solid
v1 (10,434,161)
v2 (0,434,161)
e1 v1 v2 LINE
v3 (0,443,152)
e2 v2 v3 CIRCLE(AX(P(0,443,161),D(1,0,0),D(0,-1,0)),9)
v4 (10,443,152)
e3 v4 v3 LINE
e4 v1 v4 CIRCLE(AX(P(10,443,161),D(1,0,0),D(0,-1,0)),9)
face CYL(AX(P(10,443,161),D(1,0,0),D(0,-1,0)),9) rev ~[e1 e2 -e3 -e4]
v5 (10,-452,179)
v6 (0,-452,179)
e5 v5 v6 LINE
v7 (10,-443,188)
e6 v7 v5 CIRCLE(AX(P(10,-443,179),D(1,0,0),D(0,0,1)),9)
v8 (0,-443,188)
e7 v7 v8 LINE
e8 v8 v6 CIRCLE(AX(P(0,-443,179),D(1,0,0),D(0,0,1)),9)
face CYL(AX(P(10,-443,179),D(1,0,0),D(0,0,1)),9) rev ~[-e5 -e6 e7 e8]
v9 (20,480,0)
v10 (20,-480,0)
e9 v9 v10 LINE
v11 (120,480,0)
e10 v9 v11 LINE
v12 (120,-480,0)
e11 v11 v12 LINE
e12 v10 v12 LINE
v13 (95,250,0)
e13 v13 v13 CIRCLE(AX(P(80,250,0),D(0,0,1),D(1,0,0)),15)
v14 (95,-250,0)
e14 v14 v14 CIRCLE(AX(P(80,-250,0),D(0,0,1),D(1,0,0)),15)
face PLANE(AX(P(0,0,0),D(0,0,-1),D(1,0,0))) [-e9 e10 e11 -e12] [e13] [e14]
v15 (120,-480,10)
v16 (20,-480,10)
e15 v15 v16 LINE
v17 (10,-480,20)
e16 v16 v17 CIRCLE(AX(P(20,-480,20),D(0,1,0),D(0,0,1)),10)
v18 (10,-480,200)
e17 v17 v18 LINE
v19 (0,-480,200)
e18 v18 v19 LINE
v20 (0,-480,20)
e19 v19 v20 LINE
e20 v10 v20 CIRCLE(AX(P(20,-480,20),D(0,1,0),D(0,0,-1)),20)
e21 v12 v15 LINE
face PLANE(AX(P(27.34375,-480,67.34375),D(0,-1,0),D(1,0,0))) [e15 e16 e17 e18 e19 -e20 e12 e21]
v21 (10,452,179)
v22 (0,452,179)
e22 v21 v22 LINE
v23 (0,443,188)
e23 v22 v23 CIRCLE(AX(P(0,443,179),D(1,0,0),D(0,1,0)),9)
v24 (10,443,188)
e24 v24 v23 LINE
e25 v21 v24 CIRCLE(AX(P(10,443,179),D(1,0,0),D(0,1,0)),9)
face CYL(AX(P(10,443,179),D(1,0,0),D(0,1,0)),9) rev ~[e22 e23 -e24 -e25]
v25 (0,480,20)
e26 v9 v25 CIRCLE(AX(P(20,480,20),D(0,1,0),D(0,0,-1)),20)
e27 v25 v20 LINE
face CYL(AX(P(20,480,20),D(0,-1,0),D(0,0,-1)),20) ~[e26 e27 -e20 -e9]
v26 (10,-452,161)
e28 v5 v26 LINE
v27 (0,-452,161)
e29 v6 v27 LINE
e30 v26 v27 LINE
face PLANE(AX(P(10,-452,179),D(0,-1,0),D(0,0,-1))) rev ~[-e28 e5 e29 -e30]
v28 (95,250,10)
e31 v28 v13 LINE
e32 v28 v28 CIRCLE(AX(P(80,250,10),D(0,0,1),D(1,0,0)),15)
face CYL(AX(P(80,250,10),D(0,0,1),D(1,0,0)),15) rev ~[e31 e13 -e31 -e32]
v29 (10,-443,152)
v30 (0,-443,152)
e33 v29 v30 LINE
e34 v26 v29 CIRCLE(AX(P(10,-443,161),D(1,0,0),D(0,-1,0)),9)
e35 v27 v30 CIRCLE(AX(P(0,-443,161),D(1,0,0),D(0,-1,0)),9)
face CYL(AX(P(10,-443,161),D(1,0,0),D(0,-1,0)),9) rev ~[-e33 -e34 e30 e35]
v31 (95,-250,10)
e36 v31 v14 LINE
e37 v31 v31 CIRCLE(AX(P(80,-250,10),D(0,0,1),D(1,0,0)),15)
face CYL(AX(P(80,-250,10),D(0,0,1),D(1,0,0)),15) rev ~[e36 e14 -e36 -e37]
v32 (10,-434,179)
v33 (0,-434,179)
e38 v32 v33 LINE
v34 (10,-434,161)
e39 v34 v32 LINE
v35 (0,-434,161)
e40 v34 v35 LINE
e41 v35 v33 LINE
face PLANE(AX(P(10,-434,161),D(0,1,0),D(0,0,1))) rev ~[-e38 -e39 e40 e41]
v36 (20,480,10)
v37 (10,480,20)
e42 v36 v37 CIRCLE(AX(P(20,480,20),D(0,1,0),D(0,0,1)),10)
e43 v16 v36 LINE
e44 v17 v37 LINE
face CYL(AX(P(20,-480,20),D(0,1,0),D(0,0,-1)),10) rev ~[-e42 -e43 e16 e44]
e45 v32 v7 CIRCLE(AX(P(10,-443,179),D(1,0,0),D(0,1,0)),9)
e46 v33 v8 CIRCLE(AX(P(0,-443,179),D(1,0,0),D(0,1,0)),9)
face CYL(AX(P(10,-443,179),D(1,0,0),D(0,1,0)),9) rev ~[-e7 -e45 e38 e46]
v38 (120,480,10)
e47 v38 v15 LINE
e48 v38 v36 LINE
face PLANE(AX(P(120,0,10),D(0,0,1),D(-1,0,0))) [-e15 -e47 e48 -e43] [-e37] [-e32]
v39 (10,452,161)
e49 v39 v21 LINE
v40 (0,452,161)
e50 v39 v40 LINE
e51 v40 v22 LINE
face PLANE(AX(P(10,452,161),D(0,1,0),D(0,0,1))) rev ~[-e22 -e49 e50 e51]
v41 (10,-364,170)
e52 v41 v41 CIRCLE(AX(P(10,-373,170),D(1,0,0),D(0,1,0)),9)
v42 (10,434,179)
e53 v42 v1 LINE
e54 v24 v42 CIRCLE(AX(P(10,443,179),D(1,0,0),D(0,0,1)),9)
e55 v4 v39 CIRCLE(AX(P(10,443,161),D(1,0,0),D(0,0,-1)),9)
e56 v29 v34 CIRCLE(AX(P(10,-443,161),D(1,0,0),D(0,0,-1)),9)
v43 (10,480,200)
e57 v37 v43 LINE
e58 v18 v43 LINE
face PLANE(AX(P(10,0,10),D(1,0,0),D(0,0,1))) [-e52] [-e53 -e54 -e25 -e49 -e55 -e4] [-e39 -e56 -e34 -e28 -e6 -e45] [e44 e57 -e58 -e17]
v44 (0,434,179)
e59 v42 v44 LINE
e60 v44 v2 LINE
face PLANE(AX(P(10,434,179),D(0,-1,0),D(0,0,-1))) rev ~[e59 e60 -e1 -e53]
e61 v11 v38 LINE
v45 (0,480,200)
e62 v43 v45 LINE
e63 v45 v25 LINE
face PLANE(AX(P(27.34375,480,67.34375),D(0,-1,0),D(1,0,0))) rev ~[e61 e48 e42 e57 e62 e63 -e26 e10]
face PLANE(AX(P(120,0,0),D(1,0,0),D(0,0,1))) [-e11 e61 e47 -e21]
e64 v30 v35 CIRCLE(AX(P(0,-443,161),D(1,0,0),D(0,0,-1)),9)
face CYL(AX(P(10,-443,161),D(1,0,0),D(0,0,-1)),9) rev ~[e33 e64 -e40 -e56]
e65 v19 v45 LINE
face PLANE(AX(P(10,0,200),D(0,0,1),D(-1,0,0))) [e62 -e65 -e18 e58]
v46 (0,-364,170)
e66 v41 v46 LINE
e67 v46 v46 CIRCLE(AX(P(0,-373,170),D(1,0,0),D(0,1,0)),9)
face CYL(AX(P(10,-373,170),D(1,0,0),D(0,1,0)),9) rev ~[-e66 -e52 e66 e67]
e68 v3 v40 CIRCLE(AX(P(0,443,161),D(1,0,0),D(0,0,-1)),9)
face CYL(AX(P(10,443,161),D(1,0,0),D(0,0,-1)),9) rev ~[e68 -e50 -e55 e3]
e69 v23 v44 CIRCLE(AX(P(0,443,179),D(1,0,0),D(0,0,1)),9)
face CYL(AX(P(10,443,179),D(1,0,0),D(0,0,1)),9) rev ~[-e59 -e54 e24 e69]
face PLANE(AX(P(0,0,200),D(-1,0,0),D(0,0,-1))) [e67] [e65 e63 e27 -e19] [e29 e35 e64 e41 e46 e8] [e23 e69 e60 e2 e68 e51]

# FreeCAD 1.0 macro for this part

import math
import FreeCAD as App
import Part
import Sketcher


def edges_at(feature, points):
    """Names of the edges that pass closest to the given points."""
    edges = feature.Shape.Edges
    near = lambda p: min(range(len(edges)), key=lambda i: edges[i].distToShape(Part.Vertex(*p))[0])
    return sorted({f"Edge{near(p) + 1}" for p in points})


def add_polygon(sketch, points):
    """Adds a closed chain of lines whose ends are joined by coincident constraints."""
    first, n = sketch.GeometryCount, len(points)
    for a, b in zip(points, points[1:] + points[:1]):
        sketch.addGeometry(Part.LineSegment(App.Vector(*a, 0), App.Vector(*b, 0)), False)
    for i in range(n):
        sketch.addConstraint(Sketcher.Constraint("Coincident", first + i, 2, first + (i + 1) % n, 1))

doc = App.newDocument("Part")
body = doc.addObject("PartDesign::Body", "Body")

sketch1 = body.newObject("Sketcher::SketchObject", "Sketch")
sketch1.AttachmentSupport = (doc.getObject("XZ_Plane"), [""])
sketch1.MapMode = "FlatFace"
add_polygon(sketch1, [(0, 200), (0, 0), (120, 0), (120, 10), (10, 10), (10, 200)])
sketch1.addConstraint(Sketcher.Constraint("Vertical", 0))
sketch1.addConstraint(Sketcher.Constraint("Horizontal", 1))
sketch1.addConstraint(Sketcher.Constraint("Vertical", 2))
sketch1.addConstraint(Sketcher.Constraint("Horizontal", 3))
sketch1.addConstraint(Sketcher.Constraint("Vertical", 4))
sketch1.addConstraint(Sketcher.Constraint("Horizontal", 5))
sketch1.addConstraint(Sketcher.Constraint("Coincident", 0, 2, -1, 1))
sketch1.addConstraint(Sketcher.Constraint("Equal", 5, 2))
sketch1.addConstraint(Sketcher.Constraint("DistanceX", 1, 1, 1, 2, 120.0))
sketch1.addConstraint(Sketcher.Constraint("DistanceX", 3, 2, 3, 1, 110.0))
sketch1.addConstraint(Sketcher.Constraint("DistanceY", 0, 2, 0, 1, 200.0))
pad1 = body.newObject("PartDesign::Pad", "Pad")
pad1.Profile = sketch1
pad1.Length = 960
pad1.Midplane = True

sketch2 = body.newObject("Sketcher::SketchObject", "Sketch001")
sketch2.AttachmentSupport = (doc.getObject("YZ_Plane"), [""])
sketch2.MapMode = "FlatFace"
sketch2.AttachmentOffset = App.Placement(App.Vector(0, 0, 10), App.Rotation())
sketch2.addGeometry(Part.Circle(App.Vector(-373, 170, 0), App.Vector(0, 0, 1), 9), False)
sketch2.addGeometry(Part.ArcOfCircle(Part.Circle(App.Vector(-443, 179, 0), App.Vector(0, 0, 1), 9), math.radians(0), math.radians(90)), False)
sketch2.addGeometry(Part.ArcOfCircle(Part.Circle(App.Vector(-443, 179, 0), App.Vector(0, 0, 1), 9), math.radians(90), math.radians(180)), False)
sketch2.addGeometry(Part.LineSegment(App.Vector(-452, 179, 0), App.Vector(-452, 161, 0)), False)
sketch2.addGeometry(Part.ArcOfCircle(Part.Circle(App.Vector(-443, 161, 0), App.Vector(0, 0, 1), 9), math.radians(180), math.radians(270)), False)
sketch2.addGeometry(Part.ArcOfCircle(Part.Circle(App.Vector(-443, 161, 0), App.Vector(0, 0, 1), 9), math.radians(-90), math.radians(0)), False)
sketch2.addGeometry(Part.LineSegment(App.Vector(-434, 161, 0), App.Vector(-434, 179, 0)), False)
sketch2.addGeometry(Part.ArcOfCircle(Part.Circle(App.Vector(443, 179, 0), App.Vector(0, 0, 1), 9), math.radians(90), math.radians(180)), False)
sketch2.addGeometry(Part.LineSegment(App.Vector(434, 179, 0), App.Vector(434, 161, 0)), False)
sketch2.addGeometry(Part.ArcOfCircle(Part.Circle(App.Vector(443, 161, 0), App.Vector(0, 0, 1), 9), math.radians(180), math.radians(270)), False)
sketch2.addGeometry(Part.ArcOfCircle(Part.Circle(App.Vector(443, 161, 0), App.Vector(0, 0, 1), 9), math.radians(-90), math.radians(0)), False)
sketch2.addGeometry(Part.LineSegment(App.Vector(452, 161, 0), App.Vector(452, 179, 0)), False)
sketch2.addGeometry(Part.ArcOfCircle(Part.Circle(App.Vector(443, 179, 0), App.Vector(0, 0, 1), 9), math.radians(0), math.radians(90)), False)
sketch2.addConstraint(Sketcher.Constraint("Tangent", 1, 2, 2, 1))
sketch2.addConstraint(Sketcher.Constraint("Tangent", 2, 2, 3, 1))
sketch2.addConstraint(Sketcher.Constraint("Tangent", 3, 2, 4, 1))
sketch2.addConstraint(Sketcher.Constraint("Tangent", 4, 2, 5, 1))
sketch2.addConstraint(Sketcher.Constraint("Tangent", 5, 2, 6, 1))
sketch2.addConstraint(Sketcher.Constraint("Tangent", 6, 2, 1, 1))
sketch2.addConstraint(Sketcher.Constraint("Tangent", 7, 2, 8, 1))
sketch2.addConstraint(Sketcher.Constraint("Tangent", 8, 2, 9, 1))
sketch2.addConstraint(Sketcher.Constraint("Tangent", 9, 2, 10, 1))
sketch2.addConstraint(Sketcher.Constraint("Tangent", 10, 2, 11, 1))
sketch2.addConstraint(Sketcher.Constraint("Tangent", 11, 2, 12, 1))
sketch2.addConstraint(Sketcher.Constraint("Tangent", 12, 2, 7, 1))
sketch2.addConstraint(Sketcher.Constraint("Vertical", 3))
sketch2.addConstraint(Sketcher.Constraint("Vertical", 6))
sketch2.addConstraint(Sketcher.Constraint("Vertical", 8))
sketch2.addConstraint(Sketcher.Constraint("Vertical", 11))
sketch2.addConstraint(Sketcher.Constraint("Equal", 0, 1))
sketch2.addConstraint(Sketcher.Constraint("Equal", 1, 2))
sketch2.addConstraint(Sketcher.Constraint("Equal", 2, 4))
sketch2.addConstraint(Sketcher.Constraint("Equal", 5, 7))
sketch2.addConstraint(Sketcher.Constraint("Equal", 7, 9))
sketch2.addConstraint(Sketcher.Constraint("Equal", 9, 10))
sketch2.addConstraint(Sketcher.Constraint("Symmetric", 1, 3, 7, 3, -2))
sketch2.addConstraint(Sketcher.Constraint("Symmetric", 4, 2, 9, 2, -2))
sketch2.addConstraint(Sketcher.Constraint("Vertical", 5, 3, 1, 2))
sketch2.addConstraint(Sketcher.Constraint("Vertical", 1, 2, 4, 2))
sketch2.addConstraint(Sketcher.Constraint("Vertical", 9, 2, 12, 2))
sketch2.addConstraint(Sketcher.Constraint("Diameter", 0, 18.0))
sketch2.addConstraint(Sketcher.Constraint("DistanceY", 3, 2, 3, 1, 18.0))
sketch2.addConstraint(Sketcher.Constraint("DistanceX", 0, 3, -1, 1, 373.0))
sketch2.addConstraint(Sketcher.Constraint("DistanceY", -1, 1, 0, 3, 170.0))
sketch2.addConstraint(Sketcher.Constraint("DistanceX", 1, 3, -1, 1, 443.0))
sketch2.addConstraint(Sketcher.Constraint("DistanceY", -1, 1, 1, 3, 179.0))
pocket1 = body.newObject("PartDesign::Pocket", "Pocket")
pocket1.Profile = sketch2
pocket1.Type = "ThroughAll"

sketch3 = body.newObject("Sketcher::SketchObject", "Sketch002")
sketch3.AttachmentSupport = (doc.getObject("XY_Plane"), [""])
sketch3.MapMode = "FlatFace"
sketch3.AttachmentOffset = App.Placement(App.Vector(0, 0, 10), App.Rotation())
sketch3.addGeometry(Part.Circle(App.Vector(80, -250, 0), App.Vector(0, 0, 1), 15), False)
sketch3.addGeometry(Part.Circle(App.Vector(80, 250, 0), App.Vector(0, 0, 1), 15), False)
sketch3.addConstraint(Sketcher.Constraint("Equal", 0, 1))
sketch3.addConstraint(Sketcher.Constraint("Symmetric", 0, 3, 1, 3, -1))
sketch3.addConstraint(Sketcher.Constraint("Diameter", 0, 30.0))
sketch3.addConstraint(Sketcher.Constraint("DistanceX", -1, 1, 0, 3, 80.0))
sketch3.addConstraint(Sketcher.Constraint("DistanceY", 0, 3, -1, 1, 250.0))
pocket2 = body.newObject("PartDesign::Pocket", "Pocket001")
pocket2.Profile = sketch3
pocket2.Type = "ThroughAll"
doc.recompute()

fillet = body.newObject("PartDesign::Fillet", "Fillet")
fillet.Base = (pocket2, edges_at(pocket2, [(10, 0, 10)]))
fillet.Radius = 10
doc.recompute()

fillet2 = body.newObject("PartDesign::Fillet", "Fillet001")
fillet2.Base = (fillet, edges_at(fillet, [(0, 0, 0)]))
fillet2.Radius = 20

doc.recompute()
